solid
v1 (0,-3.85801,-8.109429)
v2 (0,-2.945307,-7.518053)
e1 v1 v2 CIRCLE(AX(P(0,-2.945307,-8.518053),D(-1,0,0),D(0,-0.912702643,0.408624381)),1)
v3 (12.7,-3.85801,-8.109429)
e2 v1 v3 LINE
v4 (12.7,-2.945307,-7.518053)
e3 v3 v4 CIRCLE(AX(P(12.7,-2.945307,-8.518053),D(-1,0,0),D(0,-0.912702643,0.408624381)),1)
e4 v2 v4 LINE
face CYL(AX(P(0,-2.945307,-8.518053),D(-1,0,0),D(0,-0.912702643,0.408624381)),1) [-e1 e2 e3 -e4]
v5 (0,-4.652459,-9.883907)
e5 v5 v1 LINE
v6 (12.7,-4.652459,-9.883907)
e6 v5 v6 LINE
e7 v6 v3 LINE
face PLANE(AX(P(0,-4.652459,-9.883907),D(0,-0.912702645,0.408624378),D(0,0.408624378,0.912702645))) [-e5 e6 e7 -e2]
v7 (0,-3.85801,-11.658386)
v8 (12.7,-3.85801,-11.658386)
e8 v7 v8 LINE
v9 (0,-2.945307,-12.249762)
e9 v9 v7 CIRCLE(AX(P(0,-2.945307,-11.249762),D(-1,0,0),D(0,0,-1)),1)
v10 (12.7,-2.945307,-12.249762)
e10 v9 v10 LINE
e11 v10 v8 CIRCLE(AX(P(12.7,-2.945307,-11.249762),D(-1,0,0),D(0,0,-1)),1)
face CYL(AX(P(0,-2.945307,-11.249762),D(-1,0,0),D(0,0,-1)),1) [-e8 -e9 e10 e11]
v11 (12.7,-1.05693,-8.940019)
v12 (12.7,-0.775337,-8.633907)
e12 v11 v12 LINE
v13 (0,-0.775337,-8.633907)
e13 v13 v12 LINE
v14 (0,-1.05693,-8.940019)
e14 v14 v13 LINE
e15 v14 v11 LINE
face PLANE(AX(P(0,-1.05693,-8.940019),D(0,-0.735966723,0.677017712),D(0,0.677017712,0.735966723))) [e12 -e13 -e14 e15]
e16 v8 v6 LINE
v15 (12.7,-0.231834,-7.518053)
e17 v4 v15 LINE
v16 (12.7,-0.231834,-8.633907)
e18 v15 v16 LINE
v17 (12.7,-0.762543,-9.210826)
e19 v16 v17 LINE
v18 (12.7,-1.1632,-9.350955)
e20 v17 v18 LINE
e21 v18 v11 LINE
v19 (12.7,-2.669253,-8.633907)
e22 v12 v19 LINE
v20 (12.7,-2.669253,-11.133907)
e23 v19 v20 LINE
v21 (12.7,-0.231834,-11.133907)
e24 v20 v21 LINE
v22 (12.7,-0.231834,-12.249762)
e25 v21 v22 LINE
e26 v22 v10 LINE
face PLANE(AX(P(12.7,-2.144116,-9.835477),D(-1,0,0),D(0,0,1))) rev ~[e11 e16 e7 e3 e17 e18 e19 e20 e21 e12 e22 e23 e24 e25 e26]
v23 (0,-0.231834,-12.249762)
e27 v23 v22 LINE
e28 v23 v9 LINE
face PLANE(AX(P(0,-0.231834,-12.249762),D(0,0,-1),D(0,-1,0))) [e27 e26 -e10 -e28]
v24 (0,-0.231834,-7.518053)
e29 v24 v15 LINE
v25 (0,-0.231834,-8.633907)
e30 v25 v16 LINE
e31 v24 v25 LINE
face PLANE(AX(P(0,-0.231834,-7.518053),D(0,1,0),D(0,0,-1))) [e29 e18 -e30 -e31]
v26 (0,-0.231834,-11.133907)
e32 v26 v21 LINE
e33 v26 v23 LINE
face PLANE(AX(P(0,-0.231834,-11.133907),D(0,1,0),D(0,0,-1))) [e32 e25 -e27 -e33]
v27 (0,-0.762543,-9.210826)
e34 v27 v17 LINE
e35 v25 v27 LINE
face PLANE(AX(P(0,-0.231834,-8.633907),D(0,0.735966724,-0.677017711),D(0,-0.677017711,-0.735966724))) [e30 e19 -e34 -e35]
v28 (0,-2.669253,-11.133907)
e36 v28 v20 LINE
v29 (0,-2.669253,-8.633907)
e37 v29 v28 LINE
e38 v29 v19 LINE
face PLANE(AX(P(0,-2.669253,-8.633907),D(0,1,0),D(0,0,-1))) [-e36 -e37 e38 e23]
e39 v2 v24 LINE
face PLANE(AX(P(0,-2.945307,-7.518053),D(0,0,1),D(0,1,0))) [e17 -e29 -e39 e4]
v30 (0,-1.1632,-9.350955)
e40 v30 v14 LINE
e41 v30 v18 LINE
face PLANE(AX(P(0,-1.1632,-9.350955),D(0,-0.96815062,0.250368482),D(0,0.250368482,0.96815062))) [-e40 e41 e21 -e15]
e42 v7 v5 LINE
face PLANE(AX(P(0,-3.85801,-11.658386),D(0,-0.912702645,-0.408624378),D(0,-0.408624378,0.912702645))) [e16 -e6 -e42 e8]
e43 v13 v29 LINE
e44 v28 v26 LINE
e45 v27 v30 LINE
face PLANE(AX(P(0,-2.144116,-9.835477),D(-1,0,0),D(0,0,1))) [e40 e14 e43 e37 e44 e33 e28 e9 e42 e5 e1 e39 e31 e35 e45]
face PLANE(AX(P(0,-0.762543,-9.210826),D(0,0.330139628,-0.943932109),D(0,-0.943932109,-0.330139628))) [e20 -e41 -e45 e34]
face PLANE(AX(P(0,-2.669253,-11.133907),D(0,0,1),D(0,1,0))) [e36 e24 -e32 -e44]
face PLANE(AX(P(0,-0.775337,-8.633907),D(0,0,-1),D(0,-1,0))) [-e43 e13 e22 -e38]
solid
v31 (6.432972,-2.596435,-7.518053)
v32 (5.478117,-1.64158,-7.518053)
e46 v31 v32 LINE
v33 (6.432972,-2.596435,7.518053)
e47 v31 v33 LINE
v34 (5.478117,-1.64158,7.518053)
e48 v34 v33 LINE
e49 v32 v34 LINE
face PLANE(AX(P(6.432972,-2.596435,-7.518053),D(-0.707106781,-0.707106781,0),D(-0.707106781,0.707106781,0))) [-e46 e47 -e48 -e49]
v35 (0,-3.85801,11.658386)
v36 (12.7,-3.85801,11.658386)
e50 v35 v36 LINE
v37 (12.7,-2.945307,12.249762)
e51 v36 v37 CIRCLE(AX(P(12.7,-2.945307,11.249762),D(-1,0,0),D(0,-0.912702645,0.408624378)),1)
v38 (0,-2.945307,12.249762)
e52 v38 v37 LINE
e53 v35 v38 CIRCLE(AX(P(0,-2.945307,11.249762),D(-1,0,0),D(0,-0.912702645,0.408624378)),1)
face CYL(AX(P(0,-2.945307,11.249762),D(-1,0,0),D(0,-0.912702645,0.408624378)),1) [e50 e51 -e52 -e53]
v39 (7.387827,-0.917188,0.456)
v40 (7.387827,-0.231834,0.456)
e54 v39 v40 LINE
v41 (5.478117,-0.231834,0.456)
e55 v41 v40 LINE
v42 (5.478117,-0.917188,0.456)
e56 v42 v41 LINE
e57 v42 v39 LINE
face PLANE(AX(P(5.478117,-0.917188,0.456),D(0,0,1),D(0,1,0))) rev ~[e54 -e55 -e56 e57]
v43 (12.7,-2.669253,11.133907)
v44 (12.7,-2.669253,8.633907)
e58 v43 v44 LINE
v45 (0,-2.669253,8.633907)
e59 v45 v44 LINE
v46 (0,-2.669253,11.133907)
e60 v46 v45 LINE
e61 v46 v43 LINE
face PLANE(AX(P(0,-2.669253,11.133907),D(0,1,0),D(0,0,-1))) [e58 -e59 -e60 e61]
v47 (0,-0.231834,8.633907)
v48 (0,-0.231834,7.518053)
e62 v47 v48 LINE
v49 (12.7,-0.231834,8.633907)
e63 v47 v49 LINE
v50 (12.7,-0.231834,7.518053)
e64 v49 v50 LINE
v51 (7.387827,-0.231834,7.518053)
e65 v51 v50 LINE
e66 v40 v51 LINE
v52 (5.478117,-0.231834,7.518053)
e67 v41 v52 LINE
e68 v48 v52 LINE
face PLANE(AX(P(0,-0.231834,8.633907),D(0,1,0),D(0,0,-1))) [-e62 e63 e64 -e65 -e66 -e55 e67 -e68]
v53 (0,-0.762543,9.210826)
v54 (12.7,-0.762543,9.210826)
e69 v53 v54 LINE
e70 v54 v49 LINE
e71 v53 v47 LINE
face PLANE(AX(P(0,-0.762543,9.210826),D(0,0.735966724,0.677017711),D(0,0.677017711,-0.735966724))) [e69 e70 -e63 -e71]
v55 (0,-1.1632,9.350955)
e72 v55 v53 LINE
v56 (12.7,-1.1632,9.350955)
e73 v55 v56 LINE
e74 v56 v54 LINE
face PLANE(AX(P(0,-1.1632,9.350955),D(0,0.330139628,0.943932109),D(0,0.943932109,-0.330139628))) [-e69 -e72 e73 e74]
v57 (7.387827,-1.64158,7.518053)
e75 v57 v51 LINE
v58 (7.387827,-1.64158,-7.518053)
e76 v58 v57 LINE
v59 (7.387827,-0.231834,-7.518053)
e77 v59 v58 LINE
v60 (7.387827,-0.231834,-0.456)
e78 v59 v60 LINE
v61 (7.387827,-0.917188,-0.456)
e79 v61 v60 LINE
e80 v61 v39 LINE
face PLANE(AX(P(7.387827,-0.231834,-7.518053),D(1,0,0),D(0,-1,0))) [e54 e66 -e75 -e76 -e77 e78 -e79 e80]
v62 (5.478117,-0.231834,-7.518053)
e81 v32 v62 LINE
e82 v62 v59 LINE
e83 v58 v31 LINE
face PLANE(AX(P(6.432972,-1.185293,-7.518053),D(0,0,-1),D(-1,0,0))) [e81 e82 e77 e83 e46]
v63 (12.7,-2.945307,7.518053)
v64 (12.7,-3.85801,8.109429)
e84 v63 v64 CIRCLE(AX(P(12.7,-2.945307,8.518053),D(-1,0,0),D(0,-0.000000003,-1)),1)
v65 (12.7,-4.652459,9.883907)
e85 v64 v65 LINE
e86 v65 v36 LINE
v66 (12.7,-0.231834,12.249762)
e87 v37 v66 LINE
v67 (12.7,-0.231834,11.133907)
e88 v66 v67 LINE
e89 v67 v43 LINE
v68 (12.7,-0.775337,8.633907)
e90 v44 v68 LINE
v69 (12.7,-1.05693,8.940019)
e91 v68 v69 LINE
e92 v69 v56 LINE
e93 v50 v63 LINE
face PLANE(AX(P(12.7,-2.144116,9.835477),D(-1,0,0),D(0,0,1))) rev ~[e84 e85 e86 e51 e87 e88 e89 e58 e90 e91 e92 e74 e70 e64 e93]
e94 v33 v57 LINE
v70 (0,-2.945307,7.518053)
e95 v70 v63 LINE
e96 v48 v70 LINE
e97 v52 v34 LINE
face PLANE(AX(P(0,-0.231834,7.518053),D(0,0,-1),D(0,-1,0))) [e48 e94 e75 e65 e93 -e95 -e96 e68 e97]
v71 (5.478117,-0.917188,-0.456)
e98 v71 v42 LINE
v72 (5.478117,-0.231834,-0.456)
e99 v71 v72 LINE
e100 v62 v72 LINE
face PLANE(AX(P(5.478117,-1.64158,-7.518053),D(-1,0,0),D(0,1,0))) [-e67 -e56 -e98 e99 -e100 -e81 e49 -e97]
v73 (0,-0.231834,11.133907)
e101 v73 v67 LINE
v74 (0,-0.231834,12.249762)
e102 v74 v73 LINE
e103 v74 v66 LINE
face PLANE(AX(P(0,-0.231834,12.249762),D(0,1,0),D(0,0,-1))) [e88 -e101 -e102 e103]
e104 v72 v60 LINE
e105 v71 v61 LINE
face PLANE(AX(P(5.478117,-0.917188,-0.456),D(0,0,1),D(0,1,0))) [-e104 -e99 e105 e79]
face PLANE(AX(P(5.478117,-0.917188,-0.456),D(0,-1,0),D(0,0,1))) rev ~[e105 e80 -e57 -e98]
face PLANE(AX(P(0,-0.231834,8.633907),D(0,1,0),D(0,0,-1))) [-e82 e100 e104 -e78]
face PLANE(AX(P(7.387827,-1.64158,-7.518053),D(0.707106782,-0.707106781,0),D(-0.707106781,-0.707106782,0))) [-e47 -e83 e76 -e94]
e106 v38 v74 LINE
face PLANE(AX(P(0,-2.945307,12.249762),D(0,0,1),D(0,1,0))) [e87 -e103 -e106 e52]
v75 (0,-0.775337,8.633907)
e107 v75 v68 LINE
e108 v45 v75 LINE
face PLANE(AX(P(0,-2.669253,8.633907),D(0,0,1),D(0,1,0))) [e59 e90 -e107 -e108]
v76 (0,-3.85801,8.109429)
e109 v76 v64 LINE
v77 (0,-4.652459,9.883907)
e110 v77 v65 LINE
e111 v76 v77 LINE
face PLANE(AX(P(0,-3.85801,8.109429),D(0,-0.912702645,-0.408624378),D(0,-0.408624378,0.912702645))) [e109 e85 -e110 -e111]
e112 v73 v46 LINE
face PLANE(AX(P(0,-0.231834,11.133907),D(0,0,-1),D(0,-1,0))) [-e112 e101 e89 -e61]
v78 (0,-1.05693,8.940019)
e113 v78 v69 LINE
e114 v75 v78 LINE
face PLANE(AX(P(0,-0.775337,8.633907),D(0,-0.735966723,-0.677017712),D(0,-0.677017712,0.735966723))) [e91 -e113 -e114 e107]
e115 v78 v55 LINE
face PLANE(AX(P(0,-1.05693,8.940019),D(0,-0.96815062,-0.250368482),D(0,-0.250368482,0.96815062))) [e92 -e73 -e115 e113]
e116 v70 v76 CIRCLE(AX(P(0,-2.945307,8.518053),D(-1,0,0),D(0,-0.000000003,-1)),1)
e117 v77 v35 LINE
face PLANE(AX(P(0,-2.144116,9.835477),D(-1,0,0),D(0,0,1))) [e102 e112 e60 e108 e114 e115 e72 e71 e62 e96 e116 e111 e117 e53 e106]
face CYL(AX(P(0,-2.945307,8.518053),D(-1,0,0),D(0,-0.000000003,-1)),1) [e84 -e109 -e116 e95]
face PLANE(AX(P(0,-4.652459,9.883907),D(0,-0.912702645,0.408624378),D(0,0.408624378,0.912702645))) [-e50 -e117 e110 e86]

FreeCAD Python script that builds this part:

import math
import FreeCAD as App
import Part
import Sketcher
from FreeCAD import Vector

doc = App.newDocument("Part")
body = doc.addObject("PartDesign::Body", "Body")

sketch1 = body.newObject("Sketcher::SketchObject", "Sketch")
sketch1.AttachmentSupport = (doc.getObject("YZ_Plane"), [""])
sketch1.MapMode = "FlatFace"
sketch1.addGeometry(Part.LineSegment(Vector(-0.775337, -8.633907, 0), Vector(-1.05693, -8.940019, 0)), False)
sketch1.addGeometry(Part.LineSegment(Vector(-1.05693, -8.940019, 0), Vector(-1.1632, -9.350955, 0)), False)
sketch1.addGeometry(Part.LineSegment(Vector(-1.1632, -9.350955, 0), Vector(-0.762543, -9.210826, 0)), False)
sketch1.addGeometry(Part.LineSegment(Vector(-0.762543, -9.210826, 0), Vector(-0.231834, -8.633907, 0)), False)
sketch1.addGeometry(Part.LineSegment(Vector(-0.231834, -8.633907, 0), Vector(-0.231834, -7.518053, 0)), False)
sketch1.addGeometry(Part.LineSegment(Vector(-0.231834, -7.518053, 0), Vector(-2.945307, -7.518053, 0)), False)
sketch1.addGeometry(Part.ArcOfCircle(Part.Circle(Vector(-2.945307, -8.518053, 0), Vector(0, 0, 1), 1), math.radians(90), math.radians(155.88155)), False)
sketch1.addGeometry(Part.LineSegment(Vector(-3.85801, -8.109429, 0), Vector(-4.652459, -9.883907, 0)), False)
sketch1.addGeometry(Part.LineSegment(Vector(-4.652459, -9.883907, 0), Vector(-3.85801, -11.658386, 0)), False)
sketch1.addGeometry(Part.ArcOfCircle(Part.Circle(Vector(-2.945307, -11.249762, 0), Vector(0, 0, 1), 1), math.radians(-155.88155), math.radians(-90)), False)
sketch1.addGeometry(Part.LineSegment(Vector(-2.945307, -12.249762, 0), Vector(-0.231834, -12.249762, 0)), False)
sketch1.addGeometry(Part.LineSegment(Vector(-0.231834, -12.249762, 0), Vector(-0.231834, -11.133907, 0)), False)
sketch1.addGeometry(Part.LineSegment(Vector(-0.231834, -11.133907, 0), Vector(-2.669253, -11.133907, 0)), False)
sketch1.addGeometry(Part.LineSegment(Vector(-2.669253, -11.133907, 0), Vector(-2.669253, -8.633907, 0)), False)
sketch1.addGeometry(Part.LineSegment(Vector(-2.669253, -8.633907, 0), Vector(-0.775337, -8.633907, 0)), False)
sketch1.addConstraint(Sketcher.Constraint("Coincident", 0, 2, 1, 1))
sketch1.addConstraint(Sketcher.Constraint("Coincident", 1, 2, 2, 1))
sketch1.addConstraint(Sketcher.Constraint("Coincident", 2, 2, 3, 1))
sketch1.addConstraint(Sketcher.Constraint("Coincident", 3, 2, 4, 1))
sketch1.addConstraint(Sketcher.Constraint("Coincident", 4, 2, 5, 1))
sketch1.addConstraint(Sketcher.Constraint("Tangent", 5, 2, 6, 1))
sketch1.addConstraint(Sketcher.Constraint("Tangent", 6, 2, 7, 1))
sketch1.addConstraint(Sketcher.Constraint("Coincident", 7, 2, 8, 1))
sketch1.addConstraint(Sketcher.Constraint("Tangent", 8, 2, 9, 1))
sketch1.addConstraint(Sketcher.Constraint("Tangent", 9, 2, 10, 1))
sketch1.addConstraint(Sketcher.Constraint("Coincident", 10, 2, 11, 1))
sketch1.addConstraint(Sketcher.Constraint("Coincident", 11, 2, 12, 1))
sketch1.addConstraint(Sketcher.Constraint("Coincident", 12, 2, 13, 1))
sketch1.addConstraint(Sketcher.Constraint("Coincident", 13, 2, 14, 1))
sketch1.addConstraint(Sketcher.Constraint("Coincident", 14, 2, 0, 1))
sketch1.addConstraint(Sketcher.Constraint("Vertical", 4))
sketch1.addConstraint(Sketcher.Constraint("Horizontal", 5))
sketch1.addConstraint(Sketcher.Constraint("Horizontal", 10))
sketch1.addConstraint(Sketcher.Constraint("Vertical", 11))
sketch1.addConstraint(Sketcher.Constraint("Horizontal", 12))
sketch1.addConstraint(Sketcher.Constraint("Vertical", 13))
sketch1.addConstraint(Sketcher.Constraint("Horizontal", 14))
sketch1.addConstraint(Sketcher.Constraint("Equal", 6, 9))
sketch1.addConstraint(Sketcher.Constraint("Parallel", 0, 3))
sketch1.addConstraint(Sketcher.Constraint("Horizontal", 3, 2, 13, 2))
sketch1.addConstraint(Sketcher.Constraint("Vertical", 6, 3, 9, 3))
sketch1.addConstraint(Sketcher.Constraint("Vertical", 6, 2, 8, 2))
sketch1.addConstraint(Sketcher.Constraint("Vertical", 4, 2, 10, 2))
sketch1.addConstraint(Sketcher.Constraint("Equal", 4, 11))
sketch1.addConstraint(Sketcher.Constraint("Equal", 1, 2))
sketch1.addConstraint(Sketcher.Constraint("Radius", 6, 1.0))
sketch1.addConstraint(Sketcher.Constraint("DistanceY", 13, 1, 13, 2, 2.5))
sketch1.addConstraint(Sketcher.Constraint("DistanceX", 12, 2, 12, 1, 2.437419))
sketch1.addConstraint(Sketcher.Constraint("DistanceX", 1, 2, -1, 1, 1.1632))
sketch1.addConstraint(Sketcher.Constraint("Distance", 0, 0.415931))
sketch1.addConstraint(Sketcher.Constraint("DistanceX", 5, 2, 5, 1, 2.713473))
sketch1.addConstraint(Sketcher.Constraint("DistanceX", 14, 1, 14, 2, 1.893916))
sketch1.addConstraint(Sketcher.Constraint("DistanceY", 4, 1, 4, 2, 1.115854))
sketch1.addConstraint(Sketcher.Constraint("DistanceY", 9, 3, -1, 1, 11.249762))
sketch1.addConstraint(Sketcher.Constraint("DistanceX", 0, 2, -1, 1, 1.05693))
sketch1.addConstraint(Sketcher.Constraint("DistanceY", 0, 2, -1, 1, 8.940019))
sketch1.addConstraint(Sketcher.Constraint("DistanceX", 6, 2, -1, 1, 3.85801))
sketch1.addConstraint(Sketcher.Constraint("DistanceY", 1, 2, 2, 2, 0.140129))
pad1 = body.newObject("PartDesign::Pad", "Pad")
pad1.Profile = sketch1
pad1.Length = 12.7
body2 = doc.addObject("PartDesign::Body", "Body001")

sketch2 = body2.newObject("Sketcher::SketchObject", "Sketch001")
sketch2.AttachmentSupport = (doc.getObject("YZ_Plane001"), [""])
sketch2.MapMode = "FlatFace"
sketch2.addGeometry(Part.LineSegment(Vector(-0.231834, 7.518053, 0), Vector(-0.231834, 8.633907, 0)), False)
sketch2.addGeometry(Part.LineSegment(Vector(-0.231834, 8.633907, 0), Vector(-0.762543, 9.210826, 0)), False)
sketch2.addGeometry(Part.LineSegment(Vector(-0.762543, 9.210826, 0), Vector(-1.1632, 9.350955, 0)), False)
sketch2.addGeometry(Part.LineSegment(Vector(-1.1632, 9.350955, 0), Vector(-1.05693, 8.940019, 0)), False)
sketch2.addGeometry(Part.LineSegment(Vector(-1.05693, 8.940019, 0), Vector(-0.775337, 8.633907, 0)), False)
sketch2.addGeometry(Part.LineSegment(Vector(-0.775337, 8.633907, 0), Vector(-2.669253, 8.633907, 0)), False)
sketch2.addGeometry(Part.LineSegment(Vector(-2.669253, 8.633907, 0), Vector(-2.669253, 11.133907, 0)), False)
sketch2.addGeometry(Part.LineSegment(Vector(-2.669253, 11.133907, 0), Vector(-0.231834, 11.133907, 0)), False)
sketch2.addGeometry(Part.LineSegment(Vector(-0.231834, 11.133907, 0), Vector(-0.231834, 12.249762, 0)), False)
sketch2.addGeometry(Part.LineSegment(Vector(-0.231834, 12.249762, 0), Vector(-2.945307, 12.249762, 0)), False)
sketch2.addGeometry(Part.ArcOfCircle(Part.Circle(Vector(-2.945307, 11.249762, 0), Vector(0, 0, 1), 1), math.radians(90), math.radians(155.88155)), False)
sketch2.addGeometry(Part.LineSegment(Vector(-3.85801, 11.658386, 0), Vector(-4.652459, 9.883907, 0)), False)
sketch2.addGeometry(Part.LineSegment(Vector(-4.652459, 9.883907, 0), Vector(-3.85801, 8.109429, 0)), False)
sketch2.addGeometry(Part.ArcOfCircle(Part.Circle(Vector(-2.945307, 8.518053, 0), Vector(0, 0, 1), 1), math.radians(-155.88155), math.radians(-90)), False)
sketch2.addGeometry(Part.LineSegment(Vector(-2.945307, 7.518053, 0), Vector(-0.231834, 7.518053, 0)), False)
sketch2.addConstraint(Sketcher.Constraint("Coincident", 0, 2, 1, 1))
sketch2.addConstraint(Sketcher.Constraint("Coincident", 1, 2, 2, 1))
sketch2.addConstraint(Sketcher.Constraint("Coincident", 2, 2, 3, 1))
sketch2.addConstraint(Sketcher.Constraint("Coincident", 3, 2, 4, 1))
sketch2.addConstraint(Sketcher.Constraint("Coincident", 4, 2, 5, 1))
sketch2.addConstraint(Sketcher.Constraint("Coincident", 5, 2, 6, 1))
sketch2.addConstraint(Sketcher.Constraint("Coincident", 6, 2, 7, 1))
sketch2.addConstraint(Sketcher.Constraint("Coincident", 7, 2, 8, 1))
sketch2.addConstraint(Sketcher.Constraint("Coincident", 8, 2, 9, 1))
sketch2.addConstraint(Sketcher.Constraint("Tangent", 9, 2, 10, 1))
sketch2.addConstraint(Sketcher.Constraint("Tangent", 10, 2, 11, 1))
sketch2.addConstraint(Sketcher.Constraint("Coincident", 11, 2, 12, 1))
sketch2.addConstraint(Sketcher.Constraint("Tangent", 12, 2, 13, 1))
sketch2.addConstraint(Sketcher.Constraint("Tangent", 13, 2, 14, 1))
sketch2.addConstraint(Sketcher.Constraint("Coincident", 14, 2, 0, 1))
sketch2.addConstraint(Sketcher.Constraint("Vertical", 0))
sketch2.addConstraint(Sketcher.Constraint("Horizontal", 5))
sketch2.addConstraint(Sketcher.Constraint("Vertical", 6))
sketch2.addConstraint(Sketcher.Constraint("Horizontal", 7))
sketch2.addConstraint(Sketcher.Constraint("Vertical", 8))
sketch2.addConstraint(Sketcher.Constraint("Horizontal", 9))
sketch2.addConstraint(Sketcher.Constraint("Horizontal", 14))
sketch2.addConstraint(Sketcher.Constraint("Equal", 10, 13))
sketch2.addConstraint(Sketcher.Constraint("Parallel", 1, 4))
sketch2.addConstraint(Sketcher.Constraint("Horizontal", 0, 2, 4, 2))
sketch2.addConstraint(Sketcher.Constraint("Vertical", 10, 3, 13, 3))
sketch2.addConstraint(Sketcher.Constraint("Vertical", 0, 2, 7, 2))
sketch2.addConstraint(Sketcher.Constraint("Vertical", 10, 2, 12, 2))
sketch2.addConstraint(Sketcher.Constraint("Equal", 0, 8))
sketch2.addConstraint(Sketcher.Constraint("Equal", 2, 3))
sketch2.addConstraint(Sketcher.Constraint("Radius", 10, 1.0))
sketch2.addConstraint(Sketcher.Constraint("DistanceY", 6, 1, 6, 2, 2.5))
sketch2.addConstraint(Sketcher.Constraint("DistanceX", 7, 1, 7, 2, 2.437419))
sketch2.addConstraint(Sketcher.Constraint("DistanceX", 2, 2, -1, 1, 1.1632))
sketch2.addConstraint(Sketcher.Constraint("Distance", 4, 0.415931))
sketch2.addConstraint(Sketcher.Constraint("DistanceX", 5, 2, 5, 1, 1.893916))
sketch2.addConstraint(Sketcher.Constraint("DistanceX", 9, 2, 9, 1, 2.713473))
sketch2.addConstraint(Sketcher.Constraint("DistanceY", 0, 1, 0, 2, 1.115854))
sketch2.addConstraint(Sketcher.Constraint("DistanceY", -1, 1, 10, 3, 11.249762))
sketch2.addConstraint(Sketcher.Constraint("DistanceX", 3, 2, -1, 1, 1.05693))
sketch2.addConstraint(Sketcher.Constraint("DistanceY", -1, 1, 3, 2, 8.940019))
sketch2.addConstraint(Sketcher.Constraint("DistanceX", 10, 2, -1, 1, 3.85801))
sketch2.addConstraint(Sketcher.Constraint("DistanceX", 1, 2, 0, 2, 0.530709))
pad2 = body2.newObject("PartDesign::Pad", "Pad001")
pad2.Profile = sketch2
pad2.Length = 12.7

sketch3 = body2.newObject("Sketcher::SketchObject", "Sketch002")
sketch3.AttachmentSupport = (doc.getObject("XY_Plane001"), [""])
sketch3.MapMode = "FlatFace"
sketch3.AttachmentOffset = App.Placement(Vector(0, 0, -7.518053), App.Rotation())
sketch3.addGeometry(Part.LineSegment(Vector(7.387827, -0.231834, 0), Vector(5.478117, -0.231834, 0)), False)
sketch3.addGeometry(Part.LineSegment(Vector(5.478117, -0.231834, 0), Vector(5.478117, -1.64158, 0)), False)
sketch3.addGeometry(Part.LineSegment(Vector(5.478117, -1.64158, 0), Vector(6.432972, -2.596435, 0)), False)
sketch3.addGeometry(Part.LineSegment(Vector(6.432972, -2.596435, 0), Vector(7.387827, -1.64158, 0)), False)
sketch3.addGeometry(Part.LineSegment(Vector(7.387827, -1.64158, 0), Vector(7.387827, -0.231834, 0)), False)
sketch3.addConstraint(Sketcher.Constraint("Coincident", 0, 2, 1, 1))
sketch3.addConstraint(Sketcher.Constraint("Coincident", 1, 2, 2, 1))
sketch3.addConstraint(Sketcher.Constraint("Coincident", 2, 2, 3, 1))
sketch3.addConstraint(Sketcher.Constraint("Coincident", 3, 2, 4, 1))
sketch3.addConstraint(Sketcher.Constraint("Coincident", 4, 2, 0, 1))
sketch3.addConstraint(Sketcher.Constraint("Horizontal", 0))
sketch3.addConstraint(Sketcher.Constraint("Vertical", 1))
sketch3.addConstraint(Sketcher.Constraint("Vertical", 4))
sketch3.addConstraint(Sketcher.Constraint("Perpendicular", 2, 3))
sketch3.addConstraint(Sketcher.Constraint("Horizontal", 1, 2, 3, 2))
sketch3.addConstraint(Sketcher.Constraint("Equal", 2, 3))
sketch3.addConstraint(Sketcher.Constraint("DistanceX", 0, 2, 0, 1, 1.90971))
sketch3.addConstraint(Sketcher.Constraint("DistanceY", 2, 2, 0, 2, 2.3646))
sketch3.addConstraint(Sketcher.Constraint("DistanceY", 1, 2, -1, 1, 1.64158))
sketch3.addConstraint(Sketcher.Constraint("DistanceX", -1, 1, 0, 2, 5.478117))
pad3 = body2.newObject("PartDesign::Pad", "Pad002")
pad3.Profile = sketch3
pad3.Type = "UpToFirst"

sketch4 = body2.newObject("Sketcher::SketchObject", "Sketch003")
sketch4.AttachmentSupport = (doc.getObject("YZ_Plane001"), [""])
sketch4.MapMode = "FlatFace"
sketch4.AttachmentOffset = App.Placement(Vector(0, 0, 5.478117), App.Rotation())
sketch4.addGeometry(Part.LineSegment(Vector(-0.231834, -0.456, 0), Vector(-0.917188, -0.456, 0)), False)
sketch4.addGeometry(Part.LineSegment(Vector(-0.917188, -0.456, 0), Vector(-0.917188, 0.456, 0)), False)
sketch4.addGeometry(Part.LineSegment(Vector(-0.917188, 0.456, 0), Vector(-0.231834, 0.456, 0)), False)
sketch4.addGeometry(Part.LineSegment(Vector(-0.231834, 0.456, 0), Vector(-0.231834, -0.456, 0)), False)
sketch4.addConstraint(Sketcher.Constraint("Coincident", 0, 2, 1, 1))
sketch4.addConstraint(Sketcher.Constraint("Coincident", 1, 2, 2, 1))
sketch4.addConstraint(Sketcher.Constraint("Coincident", 2, 2, 3, 1))
sketch4.addConstraint(Sketcher.Constraint("Coincident", 3, 2, 0, 1))
sketch4.addConstraint(Sketcher.Constraint("Horizontal", 0))
sketch4.addConstraint(Sketcher.Constraint("Vertical", 1))
sketch4.addConstraint(Sketcher.Constraint("Horizontal", 2))
sketch4.addConstraint(Sketcher.Constraint("Vertical", 3))
sketch4.addConstraint(Sketcher.Constraint("DistanceY", 1, 1, 1, 2, 0.912))
sketch4.addConstraint(Sketcher.Constraint("DistanceY", 0, 2, -1, 1, 0.456))
sketch4.addConstraint(Sketcher.Constraint("DistanceX", 0, 2, 0, 1, 0.685354))
sketch4.addConstraint(Sketcher.Constraint("DistanceX", 0, 2, -1, 1, 0.917188))
pocket1 = body2.newObject("PartDesign::Pocket", "Pocket")
pocket1.Profile = sketch4
pocket1.Length = 1.90971
pocket1.Reversed = True

doc.recompute()
